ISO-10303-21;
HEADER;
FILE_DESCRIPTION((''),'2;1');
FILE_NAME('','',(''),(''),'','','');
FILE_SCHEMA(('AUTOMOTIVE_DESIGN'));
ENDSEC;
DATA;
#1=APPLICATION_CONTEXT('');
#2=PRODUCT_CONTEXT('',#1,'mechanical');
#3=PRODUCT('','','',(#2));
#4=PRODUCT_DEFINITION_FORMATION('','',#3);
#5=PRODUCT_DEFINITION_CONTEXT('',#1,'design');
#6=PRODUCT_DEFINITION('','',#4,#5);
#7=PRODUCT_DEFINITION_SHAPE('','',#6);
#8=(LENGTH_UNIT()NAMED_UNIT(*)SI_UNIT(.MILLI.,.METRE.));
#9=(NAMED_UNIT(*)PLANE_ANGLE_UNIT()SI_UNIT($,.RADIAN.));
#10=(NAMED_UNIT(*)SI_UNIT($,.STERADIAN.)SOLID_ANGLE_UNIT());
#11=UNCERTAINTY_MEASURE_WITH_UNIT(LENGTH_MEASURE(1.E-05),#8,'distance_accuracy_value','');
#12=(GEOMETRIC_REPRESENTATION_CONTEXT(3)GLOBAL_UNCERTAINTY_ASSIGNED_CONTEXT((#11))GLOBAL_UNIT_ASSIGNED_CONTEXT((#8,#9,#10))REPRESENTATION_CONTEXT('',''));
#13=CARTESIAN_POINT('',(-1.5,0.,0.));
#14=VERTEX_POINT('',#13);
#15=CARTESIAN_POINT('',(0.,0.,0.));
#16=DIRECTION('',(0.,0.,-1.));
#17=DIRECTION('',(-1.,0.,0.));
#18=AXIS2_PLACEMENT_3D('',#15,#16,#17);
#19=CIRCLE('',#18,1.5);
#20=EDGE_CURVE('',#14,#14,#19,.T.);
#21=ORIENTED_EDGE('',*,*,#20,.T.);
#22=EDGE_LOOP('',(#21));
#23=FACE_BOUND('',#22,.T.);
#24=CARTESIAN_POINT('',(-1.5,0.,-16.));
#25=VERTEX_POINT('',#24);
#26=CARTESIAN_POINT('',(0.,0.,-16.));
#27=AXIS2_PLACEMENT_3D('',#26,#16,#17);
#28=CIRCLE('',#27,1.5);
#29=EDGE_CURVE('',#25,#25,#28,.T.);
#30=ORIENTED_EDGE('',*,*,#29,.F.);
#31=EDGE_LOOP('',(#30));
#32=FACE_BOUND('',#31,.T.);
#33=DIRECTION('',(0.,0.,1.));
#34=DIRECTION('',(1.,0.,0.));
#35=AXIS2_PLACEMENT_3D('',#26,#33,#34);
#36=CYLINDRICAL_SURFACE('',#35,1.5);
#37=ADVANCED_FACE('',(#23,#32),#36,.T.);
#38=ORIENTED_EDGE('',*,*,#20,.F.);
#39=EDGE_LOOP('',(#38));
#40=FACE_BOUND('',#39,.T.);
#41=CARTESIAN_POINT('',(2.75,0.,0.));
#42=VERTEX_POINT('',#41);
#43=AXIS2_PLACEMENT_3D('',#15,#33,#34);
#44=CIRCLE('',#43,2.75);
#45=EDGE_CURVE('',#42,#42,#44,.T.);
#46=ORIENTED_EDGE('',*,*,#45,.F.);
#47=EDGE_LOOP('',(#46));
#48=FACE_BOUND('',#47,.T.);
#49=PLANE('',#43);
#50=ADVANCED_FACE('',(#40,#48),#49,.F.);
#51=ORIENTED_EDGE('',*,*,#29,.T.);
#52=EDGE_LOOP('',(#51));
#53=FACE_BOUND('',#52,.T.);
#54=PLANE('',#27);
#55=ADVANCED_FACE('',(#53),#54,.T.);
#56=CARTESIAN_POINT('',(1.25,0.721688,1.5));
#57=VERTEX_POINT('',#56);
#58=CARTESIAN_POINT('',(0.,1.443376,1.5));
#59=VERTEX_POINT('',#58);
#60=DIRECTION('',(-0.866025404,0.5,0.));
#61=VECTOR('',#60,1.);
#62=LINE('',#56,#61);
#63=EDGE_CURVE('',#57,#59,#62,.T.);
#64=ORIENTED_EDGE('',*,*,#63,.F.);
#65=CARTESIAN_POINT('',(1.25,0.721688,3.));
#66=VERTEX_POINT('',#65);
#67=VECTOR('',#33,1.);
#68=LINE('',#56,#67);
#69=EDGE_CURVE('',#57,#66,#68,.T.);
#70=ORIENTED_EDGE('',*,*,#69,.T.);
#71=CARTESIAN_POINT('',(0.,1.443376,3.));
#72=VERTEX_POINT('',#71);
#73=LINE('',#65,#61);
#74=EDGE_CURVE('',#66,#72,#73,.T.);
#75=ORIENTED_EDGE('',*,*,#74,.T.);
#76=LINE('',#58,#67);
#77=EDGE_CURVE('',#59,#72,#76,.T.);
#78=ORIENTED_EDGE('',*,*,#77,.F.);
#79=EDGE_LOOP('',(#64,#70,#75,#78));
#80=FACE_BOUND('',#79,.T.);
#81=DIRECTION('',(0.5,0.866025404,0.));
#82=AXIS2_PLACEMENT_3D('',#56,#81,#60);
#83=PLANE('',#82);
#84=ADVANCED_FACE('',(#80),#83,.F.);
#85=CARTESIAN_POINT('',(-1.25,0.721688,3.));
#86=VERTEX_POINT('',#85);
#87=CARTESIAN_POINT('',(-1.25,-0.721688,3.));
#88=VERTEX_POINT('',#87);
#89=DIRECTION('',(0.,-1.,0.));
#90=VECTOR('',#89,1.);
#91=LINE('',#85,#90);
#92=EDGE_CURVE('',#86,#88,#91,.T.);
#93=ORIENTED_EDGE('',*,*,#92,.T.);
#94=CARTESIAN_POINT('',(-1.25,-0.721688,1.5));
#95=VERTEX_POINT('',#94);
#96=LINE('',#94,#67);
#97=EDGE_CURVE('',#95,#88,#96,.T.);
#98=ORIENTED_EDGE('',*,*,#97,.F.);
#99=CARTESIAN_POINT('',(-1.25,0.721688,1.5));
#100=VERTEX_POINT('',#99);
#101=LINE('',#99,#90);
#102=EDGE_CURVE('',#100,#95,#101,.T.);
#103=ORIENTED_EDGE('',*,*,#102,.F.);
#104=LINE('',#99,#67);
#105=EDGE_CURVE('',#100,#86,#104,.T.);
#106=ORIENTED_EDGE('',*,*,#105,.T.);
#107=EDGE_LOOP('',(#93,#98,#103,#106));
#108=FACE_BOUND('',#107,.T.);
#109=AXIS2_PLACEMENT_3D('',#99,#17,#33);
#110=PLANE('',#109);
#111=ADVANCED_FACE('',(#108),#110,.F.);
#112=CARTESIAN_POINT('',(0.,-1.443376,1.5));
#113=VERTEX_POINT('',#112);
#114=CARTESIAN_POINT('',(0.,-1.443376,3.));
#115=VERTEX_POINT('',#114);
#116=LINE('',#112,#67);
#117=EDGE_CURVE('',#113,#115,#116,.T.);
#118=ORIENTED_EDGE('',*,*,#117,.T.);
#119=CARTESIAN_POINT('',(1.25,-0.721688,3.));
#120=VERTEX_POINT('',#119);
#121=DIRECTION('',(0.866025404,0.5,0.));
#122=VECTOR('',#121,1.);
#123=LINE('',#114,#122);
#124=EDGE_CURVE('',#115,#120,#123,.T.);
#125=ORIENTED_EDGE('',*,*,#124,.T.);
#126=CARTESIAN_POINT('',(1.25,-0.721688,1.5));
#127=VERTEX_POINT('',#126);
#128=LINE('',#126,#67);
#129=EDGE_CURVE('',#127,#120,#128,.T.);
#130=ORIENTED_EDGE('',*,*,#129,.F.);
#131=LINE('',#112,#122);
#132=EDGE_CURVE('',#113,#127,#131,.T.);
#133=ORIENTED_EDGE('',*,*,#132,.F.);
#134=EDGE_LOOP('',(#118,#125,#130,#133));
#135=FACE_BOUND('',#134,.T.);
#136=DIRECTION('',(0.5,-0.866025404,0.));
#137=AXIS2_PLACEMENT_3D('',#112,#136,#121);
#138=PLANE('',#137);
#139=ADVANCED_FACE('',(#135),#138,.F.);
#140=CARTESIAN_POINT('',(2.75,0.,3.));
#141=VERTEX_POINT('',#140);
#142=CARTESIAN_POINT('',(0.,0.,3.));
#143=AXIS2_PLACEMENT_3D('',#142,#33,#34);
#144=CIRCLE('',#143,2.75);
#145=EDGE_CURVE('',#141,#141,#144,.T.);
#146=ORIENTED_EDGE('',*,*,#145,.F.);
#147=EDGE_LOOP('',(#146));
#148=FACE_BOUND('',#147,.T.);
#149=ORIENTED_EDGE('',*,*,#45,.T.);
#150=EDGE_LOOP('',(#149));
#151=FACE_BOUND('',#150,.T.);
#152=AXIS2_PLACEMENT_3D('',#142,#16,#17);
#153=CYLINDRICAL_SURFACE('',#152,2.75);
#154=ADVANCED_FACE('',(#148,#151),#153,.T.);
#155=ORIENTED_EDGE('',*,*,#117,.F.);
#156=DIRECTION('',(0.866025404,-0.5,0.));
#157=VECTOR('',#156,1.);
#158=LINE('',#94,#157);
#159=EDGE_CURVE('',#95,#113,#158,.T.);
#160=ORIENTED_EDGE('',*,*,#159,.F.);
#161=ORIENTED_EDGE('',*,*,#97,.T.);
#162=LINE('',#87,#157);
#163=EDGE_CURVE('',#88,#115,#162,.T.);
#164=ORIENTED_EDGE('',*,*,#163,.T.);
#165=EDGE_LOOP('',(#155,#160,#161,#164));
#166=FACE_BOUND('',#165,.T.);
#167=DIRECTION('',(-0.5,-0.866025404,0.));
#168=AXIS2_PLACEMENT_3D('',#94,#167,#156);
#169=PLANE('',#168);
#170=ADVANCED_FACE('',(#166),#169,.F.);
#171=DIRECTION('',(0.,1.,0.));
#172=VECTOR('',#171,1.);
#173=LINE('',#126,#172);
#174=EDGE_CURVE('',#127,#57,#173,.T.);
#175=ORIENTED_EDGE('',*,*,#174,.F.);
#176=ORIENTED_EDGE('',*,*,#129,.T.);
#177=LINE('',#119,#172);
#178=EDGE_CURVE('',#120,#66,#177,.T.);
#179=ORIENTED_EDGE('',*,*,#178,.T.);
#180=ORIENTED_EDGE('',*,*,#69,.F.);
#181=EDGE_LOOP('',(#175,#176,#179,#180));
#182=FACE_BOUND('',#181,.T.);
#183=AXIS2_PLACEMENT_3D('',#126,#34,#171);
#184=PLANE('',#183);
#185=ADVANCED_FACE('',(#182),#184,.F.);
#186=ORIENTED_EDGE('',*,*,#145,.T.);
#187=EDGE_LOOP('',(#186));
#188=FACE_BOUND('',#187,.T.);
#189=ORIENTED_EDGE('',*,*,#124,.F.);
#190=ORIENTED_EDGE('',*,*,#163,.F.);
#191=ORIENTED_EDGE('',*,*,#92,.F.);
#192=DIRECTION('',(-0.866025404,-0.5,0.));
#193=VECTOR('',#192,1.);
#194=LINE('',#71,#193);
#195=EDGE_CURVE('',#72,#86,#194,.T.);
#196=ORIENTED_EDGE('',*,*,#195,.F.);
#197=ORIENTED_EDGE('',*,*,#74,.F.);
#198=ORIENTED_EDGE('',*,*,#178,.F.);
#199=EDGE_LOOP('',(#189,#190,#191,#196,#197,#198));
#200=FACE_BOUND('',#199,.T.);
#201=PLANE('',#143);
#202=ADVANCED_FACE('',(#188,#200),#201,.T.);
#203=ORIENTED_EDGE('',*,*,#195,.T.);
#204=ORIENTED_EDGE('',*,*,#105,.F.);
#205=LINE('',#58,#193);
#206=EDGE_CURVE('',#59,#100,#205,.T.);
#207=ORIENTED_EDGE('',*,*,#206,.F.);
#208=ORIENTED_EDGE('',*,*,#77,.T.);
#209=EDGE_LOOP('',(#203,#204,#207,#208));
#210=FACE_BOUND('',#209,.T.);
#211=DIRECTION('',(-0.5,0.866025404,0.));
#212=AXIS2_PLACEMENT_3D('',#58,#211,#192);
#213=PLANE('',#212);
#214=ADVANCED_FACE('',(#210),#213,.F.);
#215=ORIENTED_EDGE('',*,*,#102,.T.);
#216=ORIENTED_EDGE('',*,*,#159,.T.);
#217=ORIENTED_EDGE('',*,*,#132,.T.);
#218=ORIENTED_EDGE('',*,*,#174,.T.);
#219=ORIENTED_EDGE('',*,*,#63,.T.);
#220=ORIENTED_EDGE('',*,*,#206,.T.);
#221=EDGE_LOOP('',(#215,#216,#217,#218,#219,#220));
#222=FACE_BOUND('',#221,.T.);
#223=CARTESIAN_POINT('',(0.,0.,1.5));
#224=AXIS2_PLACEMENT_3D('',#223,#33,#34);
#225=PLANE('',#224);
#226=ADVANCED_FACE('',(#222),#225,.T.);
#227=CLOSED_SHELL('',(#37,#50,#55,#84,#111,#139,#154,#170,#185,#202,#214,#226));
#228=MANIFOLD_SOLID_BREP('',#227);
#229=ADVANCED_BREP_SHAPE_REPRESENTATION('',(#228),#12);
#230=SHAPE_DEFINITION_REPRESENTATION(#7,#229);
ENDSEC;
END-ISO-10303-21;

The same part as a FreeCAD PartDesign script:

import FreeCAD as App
import Part
import Sketcher

V = App.Vector
Q = App.Units.Quantity

doc = App.newDocument("Part")
params = doc.addObject("Spreadsheet::Sheet", "Params")
for row, (alias, value) in enumerate([
    ("sketch1_diameter", "5.5 mm"),
    ("pad1_length", "3 mm"),
    ("pocket1_length", "1.5 mm"),
    ("sketch3_diameter", "3 mm"),
    ("pad2_length", "16 mm"),
], start=1):
    params.set(f"A{row}", alias)
    params.set(f"B{row}", "=" + value)
    params.setAlias(f"B{row}", alias)

body = doc.addObject("PartDesign::Body", "Body")

# Sketch on XY plane
sketch1 = body.newObject("Sketcher::SketchObject", "Sketch")
sketch1.AttachmentSupport = (doc.getObject("XY_Plane"), [""])
sketch1.MapMode = "FlatFace"
sketch1.addGeometry(Part.Circle(V(0, 0, 0), V(0, 0, 1), 2.8), False)
sketch1.addConstraint(Sketcher.Constraint("Coincident", 0, 3, -1, 1))
sketch1.addConstraint(Sketcher.Constraint("Diameter", 0, Q("5.5 mm")))
sketch1.setExpression("Constraints[1]", "Params.sketch1_diameter")
pad1 = body.newObject("PartDesign::Pad", "Pad")
pad1.Profile = sketch1
pad1.setExpression("Length", "Params.pad1_length")

# Sketch on XY plane
sketch2 = body.newObject("Sketcher::SketchObject", "Sketch001")
sketch2.AttachmentSupport = (doc.getObject("XY_Plane"), [""])
sketch2.MapMode = "FlatFace"
sketch2.AttachmentOffset = App.Placement(V(0, 0, 3), App.Rotation())
sketch2.addGeometry(Part.LineSegment(V(0, -1.4, 0), V(1.2, -0.7, 0)), False)
sketch2.addGeometry(Part.LineSegment(V(1.2, -0.7, 0), V(1.2, 0.7, 0)), False)
sketch2.addGeometry(Part.LineSegment(V(1.2, 0.7, 0), V(0, 1.4, 0)), False)
sketch2.addGeometry(Part.LineSegment(V(0, 1.4, 0), V(-1.2, 0.7, 0)), False)
sketch2.addGeometry(Part.LineSegment(V(-1.2, 0.7, 0), V(-1.2, -0.7, 0)), False)
sketch2.addGeometry(Part.LineSegment(V(-1.2, -0.7, 0), V(0, -1.4, 0)), False)
sketch2.addConstraint(Sketcher.Constraint("Coincident", 0, 2, 1, 1))
sketch2.addConstraint(Sketcher.Constraint("Coincident", 1, 2, 2, 1))
sketch2.addConstraint(Sketcher.Constraint("Coincident", 2, 2, 3, 1))
sketch2.addConstraint(Sketcher.Constraint("Coincident", 3, 2, 4, 1))
sketch2.addConstraint(Sketcher.Constraint("Coincident", 4, 2, 5, 1))
sketch2.addConstraint(Sketcher.Constraint("Coincident", 5, 2, 0, 1))
sketch2.addConstraint(Sketcher.Constraint("Vertical", 1))
sketch2.addConstraint(Sketcher.Constraint("Vertical", 4))
sketch2.addConstraint(Sketcher.Constraint("Symmetric", 0, 2, 3, 2, -1, 1))
sketch2.addConstraint(Sketcher.Constraint("Symmetric", 2, 2, 5, 2, -1, 1))
sketch2.addConstraint(Sketcher.Constraint("PointOnObject", 2, 2, -2))
sketch2.addConstraint(Sketcher.Constraint("Parallel", 2, 5))
sketch2.addConstraint(Sketcher.Constraint("Horizontal", 1, 2, 3, 2))
sketch2.addConstraint(Sketcher.Constraint("Angle", 0, Q("30 deg")))
sketch2.addConstraint(Sketcher.Constraint("DistanceX", 3, 2, 1, 2, Q("2.5 mm")))
sketch2.addConstraint(Sketcher.Constraint("DistanceY", 1, 1, 1, 2, Q("1.443376 mm")))
pocket1 = body.newObject("PartDesign::Pocket", "Pocket")
pocket1.Profile = sketch2
pocket1.setExpression("Length", "Params.pocket1_length")

# Sketch on XY plane
sketch3 = body.newObject("Sketcher::SketchObject", "Sketch002")
sketch3.AttachmentSupport = (doc.getObject("XY_Plane"), [""])
sketch3.MapMode = "FlatFace"
sketch3.addGeometry(Part.Circle(V(0, 0, 0), V(0, 0, 1), 1.5), False)
sketch3.addConstraint(Sketcher.Constraint("Coincident", 0, 3, -1, 1))
sketch3.addConstraint(Sketcher.Constraint("Diameter", 0, Q("3 mm")))
sketch3.setExpression("Constraints[1]", "Params.sketch3_diameter")
pad2 = body.newObject("PartDesign::Pad", "Pad001")
pad2.Profile = sketch3
pad2.setExpression("Length", "Params.pad2_length")
pad2.Reversed = True

doc.recompute()
